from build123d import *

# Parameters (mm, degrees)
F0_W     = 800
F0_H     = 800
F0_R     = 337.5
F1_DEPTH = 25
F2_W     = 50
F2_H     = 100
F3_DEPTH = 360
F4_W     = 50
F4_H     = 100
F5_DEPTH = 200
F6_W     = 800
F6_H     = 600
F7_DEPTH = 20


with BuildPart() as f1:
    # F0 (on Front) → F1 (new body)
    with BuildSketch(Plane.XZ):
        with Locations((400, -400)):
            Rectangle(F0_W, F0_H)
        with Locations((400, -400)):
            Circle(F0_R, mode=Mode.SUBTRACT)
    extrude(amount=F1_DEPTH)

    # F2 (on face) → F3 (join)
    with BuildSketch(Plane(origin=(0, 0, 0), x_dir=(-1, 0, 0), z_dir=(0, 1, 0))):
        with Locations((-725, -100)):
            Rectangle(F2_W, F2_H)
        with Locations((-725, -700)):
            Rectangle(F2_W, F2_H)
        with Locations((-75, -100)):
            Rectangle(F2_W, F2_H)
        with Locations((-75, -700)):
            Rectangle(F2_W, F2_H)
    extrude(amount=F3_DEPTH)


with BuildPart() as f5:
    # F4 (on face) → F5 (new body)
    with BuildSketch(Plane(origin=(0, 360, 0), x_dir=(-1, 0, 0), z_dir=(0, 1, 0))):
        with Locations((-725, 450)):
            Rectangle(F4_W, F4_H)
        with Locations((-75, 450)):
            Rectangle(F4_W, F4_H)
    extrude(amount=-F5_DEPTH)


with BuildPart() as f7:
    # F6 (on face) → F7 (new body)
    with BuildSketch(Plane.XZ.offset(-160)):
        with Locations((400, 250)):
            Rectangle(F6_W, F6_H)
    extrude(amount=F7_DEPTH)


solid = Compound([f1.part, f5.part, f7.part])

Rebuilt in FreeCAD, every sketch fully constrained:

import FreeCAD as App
import Part
import Sketcher

V = App.Vector
Q = App.Units.Quantity

doc = App.newDocument("Part")
body = doc.addObject("PartDesign::Body", "Body")

sketch1 = body.newObject("Sketcher::SketchObject", "Sketch")
sketch1.AttachmentSupport = (doc.getObject("XZ_Plane"), [""])
sketch1.MapMode = "FlatFace"
sketch1.addGeometry([
    Part.LineSegment(V(0, 0, 0), V(0, -800, 0)),
    Part.LineSegment(V(0, -800, 0), V(800, -800, 0)),
    Part.LineSegment(V(800, -800, 0), V(800, 0, 0)),
    Part.LineSegment(V(800, 0, 0), V(0, 0, 0)),
    Part.Circle(V(400, -400, 0), V(0, 0, 1), 338),
], False)
sketch1.addConstraint([
    Sketcher.Constraint("Coincident", 0, 2, 1, 1),
    Sketcher.Constraint("Coincident", 1, 2, 2, 1),
    Sketcher.Constraint("Coincident", 2, 2, 3, 1),
    Sketcher.Constraint("Coincident", 3, 2, 0, 1),
    Sketcher.Constraint("Vertical", 0),
    Sketcher.Constraint("Horizontal", 1),
    Sketcher.Constraint("Vertical", 2),
    Sketcher.Constraint("Horizontal", 3),
    Sketcher.Constraint("Coincident", 3, 2, -1, 1),
    Sketcher.Constraint("Equal", 3, 0),
    Sketcher.Constraint("Diameter", 4, Q("675 mm")),
    Sketcher.Constraint("DistanceX", 1, 1, 1, 2, Q("800 mm")),
    Sketcher.Constraint("DistanceX", -1, 1, 4, 3, Q("400 mm")),
    Sketcher.Constraint("DistanceY", 4, 3, -1, 1, Q("400 mm")),
])
pad1 = body.newObject("PartDesign::Pad", "Pad")
pad1.Profile = sketch1
pad1.Length = 25

sketch2 = body.newObject("Sketcher::SketchObject", "Sketch001")
sketch2.AttachmentSupport = (doc.getObject("XZ_Plane"), [""])
sketch2.MapMode = "FlatFace"
sketch2.addGeometry([
    Part.LineSegment(V(750, -50, 0), V(750, -150, 0)),
    Part.LineSegment(V(750, -150, 0), V(700, -150, 0)),
    Part.LineSegment(V(700, -150, 0), V(700, -50, 0)),
    Part.LineSegment(V(700, -50, 0), V(750, -50, 0)),
    Part.LineSegment(V(750, -650, 0), V(750, -750, 0)),
    Part.LineSegment(V(750, -750, 0), V(700, -750, 0)),
    Part.LineSegment(V(700, -750, 0), V(700, -650, 0)),
    Part.LineSegment(V(700, -650, 0), V(750, -650, 0)),
    Part.LineSegment(V(100, -50, 0), V(100, -150, 0)),
    Part.LineSegment(V(100, -150, 0), V(50, -150, 0)),
    Part.LineSegment(V(50, -150, 0), V(50, -50, 0)),
    Part.LineSegment(V(50, -50, 0), V(100, -50, 0)),
    Part.LineSegment(V(100, -650, 0), V(100, -750, 0)),
    Part.LineSegment(V(100, -750, 0), V(50, -750, 0)),
    Part.LineSegment(V(50, -750, 0), V(50, -650, 0)),
    Part.LineSegment(V(50, -650, 0), V(100, -650, 0)),
], False)
sketch2.addConstraint([
    Sketcher.Constraint("Coincident", 0, 2, 1, 1),
    Sketcher.Constraint("Coincident", 1, 2, 2, 1),
    Sketcher.Constraint("Coincident", 2, 2, 3, 1),
    Sketcher.Constraint("Coincident", 3, 2, 0, 1),
    Sketcher.Constraint("Coincident", 4, 2, 5, 1),
    Sketcher.Constraint("Coincident", 5, 2, 6, 1),
    Sketcher.Constraint("Coincident", 6, 2, 7, 1),
    Sketcher.Constraint("Coincident", 7, 2, 4, 1),
    Sketcher.Constraint("Coincident", 8, 2, 9, 1),
    Sketcher.Constraint("Coincident", 9, 2, 10, 1),
    Sketcher.Constraint("Coincident", 10, 2, 11, 1),
    Sketcher.Constraint("Coincident", 11, 2, 8, 1),
    Sketcher.Constraint("Coincident", 12, 2, 13, 1),
    Sketcher.Constraint("Coincident", 13, 2, 14, 1),
    Sketcher.Constraint("Coincident", 14, 2, 15, 1),
    Sketcher.Constraint("Coincident", 15, 2, 12, 1),
    Sketcher.Constraint("Vertical", 0),
    Sketcher.Constraint("Horizontal", 1),
    Sketcher.Constraint("Vertical", 2),
    Sketcher.Constraint("Horizontal", 3),
    Sketcher.Constraint("Vertical", 4),
    Sketcher.Constraint("Horizontal", 5),
    Sketcher.Constraint("Vertical", 6),
    Sketcher.Constraint("Horizontal", 7),
    Sketcher.Constraint("Vertical", 8),
    Sketcher.Constraint("Horizontal", 9),
    Sketcher.Constraint("Vertical", 10),
    Sketcher.Constraint("Horizontal", 11),
    Sketcher.Constraint("Vertical", 12),
    Sketcher.Constraint("Horizontal", 13),
    Sketcher.Constraint("Vertical", 14),
    Sketcher.Constraint("Horizontal", 15),
    Sketcher.Constraint("Horizontal", 1, 2, 8, 2),
    Sketcher.Constraint("Horizontal", 3, 2, 10, 2),
    Sketcher.Constraint("Horizontal", 5, 2, 12, 2),
    Sketcher.Constraint("Horizontal", 7, 2, 14, 2),
    Sketcher.Constraint("Vertical", 3, 2, 4, 2),
    Sketcher.Constraint("Vertical", 2, 2, 5, 2),
    Sketcher.Constraint("Vertical", 11, 2, 12, 2),
    Sketcher.Constraint("Vertical", 10, 2, 13, 2),
    Sketcher.Constraint("Equal", 7, 9),
    Sketcher.Constraint("Equal", 2, 4),
    Sketcher.Constraint("DistanceX", 1, 2, 1, 1, Q("50 mm")),
    Sketcher.Constraint("DistanceY", 0, 2, 0, 1, Q("100 mm")),
    Sketcher.Constraint("DistanceX", -1, 1, 0, 2, Q("750 mm")),
    Sketcher.Constraint("DistanceY", 0, 2, -1, 1, Q("150 mm")),
    Sketcher.Constraint("DistanceY", 4, 2, -1, 1, Q("750 mm")),
    Sketcher.Constraint("DistanceX", -1, 1, 8, 2, Q("100 mm")),
])
pad2 = body.newObject("PartDesign::Pad", "Pad001")
pad2.Profile = sketch2
pad2.Length = 360
pad2.Reversed = True
body2 = doc.addObject("PartDesign::Body", "Body001")
body2.AllowCompound = True

sketch3 = body2.newObject("Sketcher::SketchObject", "Sketch002")
sketch3.AttachmentSupport = (doc.getObject("XZ_Plane001"), [""])
sketch3.MapMode = "FlatFace"
sketch3.AttachmentOffset = App.Placement(V(0, 0, -360), App.Rotation())
sketch3.addGeometry([
    Part.LineSegment(V(750, 500, 0), V(750, 400, 0)),
    Part.LineSegment(V(750, 400, 0), V(700, 400, 0)),
    Part.LineSegment(V(700, 400, 0), V(700, 500, 0)),
    Part.LineSegment(V(700, 500, 0), V(750, 500, 0)),
    Part.LineSegment(V(100, 500, 0), V(100, 400, 0)),
    Part.LineSegment(V(100, 400, 0), V(50, 400, 0)),
    Part.LineSegment(V(50, 400, 0), V(50, 500, 0)),
    Part.LineSegment(V(50, 500, 0), V(100, 500, 0)),
], False)
sketch3.addConstraint([
    Sketcher.Constraint("Coincident", 0, 2, 1, 1),
    Sketcher.Constraint("Coincident", 1, 2, 2, 1),
    Sketcher.Constraint("Coincident", 2, 2, 3, 1),
    Sketcher.Constraint("Coincident", 3, 2, 0, 1),
    Sketcher.Constraint("Coincident", 4, 2, 5, 1),
    Sketcher.Constraint("Coincident", 5, 2, 6, 1),
    Sketcher.Constraint("Coincident", 6, 2, 7, 1),
    Sketcher.Constraint("Coincident", 7, 2, 4, 1),
    Sketcher.Constraint("Vertical", 0),
    Sketcher.Constraint("Horizontal", 1),
    Sketcher.Constraint("Vertical", 2),
    Sketcher.Constraint("Horizontal", 3),
    Sketcher.Constraint("Vertical", 4),
    Sketcher.Constraint("Horizontal", 5),
    Sketcher.Constraint("Vertical", 6),
    Sketcher.Constraint("Horizontal", 7),
    Sketcher.Constraint("Horizontal", 1, 2, 4, 2),
    Sketcher.Constraint("Horizontal", 3, 2, 6, 2),
    Sketcher.Constraint("Equal", 3, 5),
    Sketcher.Constraint("DistanceX", 1, 2, 1, 1, Q("50 mm")),
    Sketcher.Constraint("DistanceY", 0, 2, 0, 1, Q("100 mm")),
    Sketcher.Constraint("DistanceX", -1, 1, 0, 2, Q("750 mm")),
    Sketcher.Constraint("DistanceY", -1, 1, 0, 2, Q("400 mm")),
    Sketcher.Constraint("DistanceX", -1, 1, 4, 2, Q("100 mm")),
])
pad3 = body2.newObject("PartDesign::Pad", "Pad002")
pad3.Profile = sketch3
pad3.Length = 200
body3 = doc.addObject("PartDesign::Body", "Body002")

sketch4 = body3.newObject("Sketcher::SketchObject", "Sketch003")
sketch4.AttachmentSupport = (doc.getObject("XZ_Plane002"), [""])
sketch4.MapMode = "FlatFace"
sketch4.AttachmentOffset = App.Placement(V(0, 0, -160), App.Rotation())
sketch4.addGeometry([
    Part.LineSegment(V(0, 550, 0), V(0, -50, 0)),
    Part.LineSegment(V(0, -50, 0), V(800, -50, 0)),
    Part.LineSegment(V(800, -50, 0), V(800, 550, 0)),
    Part.LineSegment(V(800, 550, 0), V(0, 550, 0)),
], False)
sketch4.addConstraint([
    Sketcher.Constraint("Coincident", 0, 2, 1, 1),
    Sketcher.Constraint("Coincident", 1, 2, 2, 1),
    Sketcher.Constraint("Coincident", 2, 2, 3, 1),
    Sketcher.Constraint("Coincident", 3, 2, 0, 1),
    Sketcher.Constraint("Vertical", 0),
    Sketcher.Constraint("Horizontal", 1),
    Sketcher.Constraint("Vertical", 2),
    Sketcher.Constraint("Horizontal", 3),
    Sketcher.Constraint("PointOnObject", 0, 2, -2),
    Sketcher.Constraint("DistanceX", 1, 1, 1, 2, Q("800 mm")),
    Sketcher.Constraint("DistanceY", 0, 2, 0, 1, Q("600 mm")),
    Sketcher.Constraint("DistanceY", 0, 2, -1, 1, Q("50 mm")),
])
pad4 = body3.newObject("PartDesign::Pad", "Pad003")
pad4.Profile = sketch4
pad4.Length = 20

doc.recompute()
